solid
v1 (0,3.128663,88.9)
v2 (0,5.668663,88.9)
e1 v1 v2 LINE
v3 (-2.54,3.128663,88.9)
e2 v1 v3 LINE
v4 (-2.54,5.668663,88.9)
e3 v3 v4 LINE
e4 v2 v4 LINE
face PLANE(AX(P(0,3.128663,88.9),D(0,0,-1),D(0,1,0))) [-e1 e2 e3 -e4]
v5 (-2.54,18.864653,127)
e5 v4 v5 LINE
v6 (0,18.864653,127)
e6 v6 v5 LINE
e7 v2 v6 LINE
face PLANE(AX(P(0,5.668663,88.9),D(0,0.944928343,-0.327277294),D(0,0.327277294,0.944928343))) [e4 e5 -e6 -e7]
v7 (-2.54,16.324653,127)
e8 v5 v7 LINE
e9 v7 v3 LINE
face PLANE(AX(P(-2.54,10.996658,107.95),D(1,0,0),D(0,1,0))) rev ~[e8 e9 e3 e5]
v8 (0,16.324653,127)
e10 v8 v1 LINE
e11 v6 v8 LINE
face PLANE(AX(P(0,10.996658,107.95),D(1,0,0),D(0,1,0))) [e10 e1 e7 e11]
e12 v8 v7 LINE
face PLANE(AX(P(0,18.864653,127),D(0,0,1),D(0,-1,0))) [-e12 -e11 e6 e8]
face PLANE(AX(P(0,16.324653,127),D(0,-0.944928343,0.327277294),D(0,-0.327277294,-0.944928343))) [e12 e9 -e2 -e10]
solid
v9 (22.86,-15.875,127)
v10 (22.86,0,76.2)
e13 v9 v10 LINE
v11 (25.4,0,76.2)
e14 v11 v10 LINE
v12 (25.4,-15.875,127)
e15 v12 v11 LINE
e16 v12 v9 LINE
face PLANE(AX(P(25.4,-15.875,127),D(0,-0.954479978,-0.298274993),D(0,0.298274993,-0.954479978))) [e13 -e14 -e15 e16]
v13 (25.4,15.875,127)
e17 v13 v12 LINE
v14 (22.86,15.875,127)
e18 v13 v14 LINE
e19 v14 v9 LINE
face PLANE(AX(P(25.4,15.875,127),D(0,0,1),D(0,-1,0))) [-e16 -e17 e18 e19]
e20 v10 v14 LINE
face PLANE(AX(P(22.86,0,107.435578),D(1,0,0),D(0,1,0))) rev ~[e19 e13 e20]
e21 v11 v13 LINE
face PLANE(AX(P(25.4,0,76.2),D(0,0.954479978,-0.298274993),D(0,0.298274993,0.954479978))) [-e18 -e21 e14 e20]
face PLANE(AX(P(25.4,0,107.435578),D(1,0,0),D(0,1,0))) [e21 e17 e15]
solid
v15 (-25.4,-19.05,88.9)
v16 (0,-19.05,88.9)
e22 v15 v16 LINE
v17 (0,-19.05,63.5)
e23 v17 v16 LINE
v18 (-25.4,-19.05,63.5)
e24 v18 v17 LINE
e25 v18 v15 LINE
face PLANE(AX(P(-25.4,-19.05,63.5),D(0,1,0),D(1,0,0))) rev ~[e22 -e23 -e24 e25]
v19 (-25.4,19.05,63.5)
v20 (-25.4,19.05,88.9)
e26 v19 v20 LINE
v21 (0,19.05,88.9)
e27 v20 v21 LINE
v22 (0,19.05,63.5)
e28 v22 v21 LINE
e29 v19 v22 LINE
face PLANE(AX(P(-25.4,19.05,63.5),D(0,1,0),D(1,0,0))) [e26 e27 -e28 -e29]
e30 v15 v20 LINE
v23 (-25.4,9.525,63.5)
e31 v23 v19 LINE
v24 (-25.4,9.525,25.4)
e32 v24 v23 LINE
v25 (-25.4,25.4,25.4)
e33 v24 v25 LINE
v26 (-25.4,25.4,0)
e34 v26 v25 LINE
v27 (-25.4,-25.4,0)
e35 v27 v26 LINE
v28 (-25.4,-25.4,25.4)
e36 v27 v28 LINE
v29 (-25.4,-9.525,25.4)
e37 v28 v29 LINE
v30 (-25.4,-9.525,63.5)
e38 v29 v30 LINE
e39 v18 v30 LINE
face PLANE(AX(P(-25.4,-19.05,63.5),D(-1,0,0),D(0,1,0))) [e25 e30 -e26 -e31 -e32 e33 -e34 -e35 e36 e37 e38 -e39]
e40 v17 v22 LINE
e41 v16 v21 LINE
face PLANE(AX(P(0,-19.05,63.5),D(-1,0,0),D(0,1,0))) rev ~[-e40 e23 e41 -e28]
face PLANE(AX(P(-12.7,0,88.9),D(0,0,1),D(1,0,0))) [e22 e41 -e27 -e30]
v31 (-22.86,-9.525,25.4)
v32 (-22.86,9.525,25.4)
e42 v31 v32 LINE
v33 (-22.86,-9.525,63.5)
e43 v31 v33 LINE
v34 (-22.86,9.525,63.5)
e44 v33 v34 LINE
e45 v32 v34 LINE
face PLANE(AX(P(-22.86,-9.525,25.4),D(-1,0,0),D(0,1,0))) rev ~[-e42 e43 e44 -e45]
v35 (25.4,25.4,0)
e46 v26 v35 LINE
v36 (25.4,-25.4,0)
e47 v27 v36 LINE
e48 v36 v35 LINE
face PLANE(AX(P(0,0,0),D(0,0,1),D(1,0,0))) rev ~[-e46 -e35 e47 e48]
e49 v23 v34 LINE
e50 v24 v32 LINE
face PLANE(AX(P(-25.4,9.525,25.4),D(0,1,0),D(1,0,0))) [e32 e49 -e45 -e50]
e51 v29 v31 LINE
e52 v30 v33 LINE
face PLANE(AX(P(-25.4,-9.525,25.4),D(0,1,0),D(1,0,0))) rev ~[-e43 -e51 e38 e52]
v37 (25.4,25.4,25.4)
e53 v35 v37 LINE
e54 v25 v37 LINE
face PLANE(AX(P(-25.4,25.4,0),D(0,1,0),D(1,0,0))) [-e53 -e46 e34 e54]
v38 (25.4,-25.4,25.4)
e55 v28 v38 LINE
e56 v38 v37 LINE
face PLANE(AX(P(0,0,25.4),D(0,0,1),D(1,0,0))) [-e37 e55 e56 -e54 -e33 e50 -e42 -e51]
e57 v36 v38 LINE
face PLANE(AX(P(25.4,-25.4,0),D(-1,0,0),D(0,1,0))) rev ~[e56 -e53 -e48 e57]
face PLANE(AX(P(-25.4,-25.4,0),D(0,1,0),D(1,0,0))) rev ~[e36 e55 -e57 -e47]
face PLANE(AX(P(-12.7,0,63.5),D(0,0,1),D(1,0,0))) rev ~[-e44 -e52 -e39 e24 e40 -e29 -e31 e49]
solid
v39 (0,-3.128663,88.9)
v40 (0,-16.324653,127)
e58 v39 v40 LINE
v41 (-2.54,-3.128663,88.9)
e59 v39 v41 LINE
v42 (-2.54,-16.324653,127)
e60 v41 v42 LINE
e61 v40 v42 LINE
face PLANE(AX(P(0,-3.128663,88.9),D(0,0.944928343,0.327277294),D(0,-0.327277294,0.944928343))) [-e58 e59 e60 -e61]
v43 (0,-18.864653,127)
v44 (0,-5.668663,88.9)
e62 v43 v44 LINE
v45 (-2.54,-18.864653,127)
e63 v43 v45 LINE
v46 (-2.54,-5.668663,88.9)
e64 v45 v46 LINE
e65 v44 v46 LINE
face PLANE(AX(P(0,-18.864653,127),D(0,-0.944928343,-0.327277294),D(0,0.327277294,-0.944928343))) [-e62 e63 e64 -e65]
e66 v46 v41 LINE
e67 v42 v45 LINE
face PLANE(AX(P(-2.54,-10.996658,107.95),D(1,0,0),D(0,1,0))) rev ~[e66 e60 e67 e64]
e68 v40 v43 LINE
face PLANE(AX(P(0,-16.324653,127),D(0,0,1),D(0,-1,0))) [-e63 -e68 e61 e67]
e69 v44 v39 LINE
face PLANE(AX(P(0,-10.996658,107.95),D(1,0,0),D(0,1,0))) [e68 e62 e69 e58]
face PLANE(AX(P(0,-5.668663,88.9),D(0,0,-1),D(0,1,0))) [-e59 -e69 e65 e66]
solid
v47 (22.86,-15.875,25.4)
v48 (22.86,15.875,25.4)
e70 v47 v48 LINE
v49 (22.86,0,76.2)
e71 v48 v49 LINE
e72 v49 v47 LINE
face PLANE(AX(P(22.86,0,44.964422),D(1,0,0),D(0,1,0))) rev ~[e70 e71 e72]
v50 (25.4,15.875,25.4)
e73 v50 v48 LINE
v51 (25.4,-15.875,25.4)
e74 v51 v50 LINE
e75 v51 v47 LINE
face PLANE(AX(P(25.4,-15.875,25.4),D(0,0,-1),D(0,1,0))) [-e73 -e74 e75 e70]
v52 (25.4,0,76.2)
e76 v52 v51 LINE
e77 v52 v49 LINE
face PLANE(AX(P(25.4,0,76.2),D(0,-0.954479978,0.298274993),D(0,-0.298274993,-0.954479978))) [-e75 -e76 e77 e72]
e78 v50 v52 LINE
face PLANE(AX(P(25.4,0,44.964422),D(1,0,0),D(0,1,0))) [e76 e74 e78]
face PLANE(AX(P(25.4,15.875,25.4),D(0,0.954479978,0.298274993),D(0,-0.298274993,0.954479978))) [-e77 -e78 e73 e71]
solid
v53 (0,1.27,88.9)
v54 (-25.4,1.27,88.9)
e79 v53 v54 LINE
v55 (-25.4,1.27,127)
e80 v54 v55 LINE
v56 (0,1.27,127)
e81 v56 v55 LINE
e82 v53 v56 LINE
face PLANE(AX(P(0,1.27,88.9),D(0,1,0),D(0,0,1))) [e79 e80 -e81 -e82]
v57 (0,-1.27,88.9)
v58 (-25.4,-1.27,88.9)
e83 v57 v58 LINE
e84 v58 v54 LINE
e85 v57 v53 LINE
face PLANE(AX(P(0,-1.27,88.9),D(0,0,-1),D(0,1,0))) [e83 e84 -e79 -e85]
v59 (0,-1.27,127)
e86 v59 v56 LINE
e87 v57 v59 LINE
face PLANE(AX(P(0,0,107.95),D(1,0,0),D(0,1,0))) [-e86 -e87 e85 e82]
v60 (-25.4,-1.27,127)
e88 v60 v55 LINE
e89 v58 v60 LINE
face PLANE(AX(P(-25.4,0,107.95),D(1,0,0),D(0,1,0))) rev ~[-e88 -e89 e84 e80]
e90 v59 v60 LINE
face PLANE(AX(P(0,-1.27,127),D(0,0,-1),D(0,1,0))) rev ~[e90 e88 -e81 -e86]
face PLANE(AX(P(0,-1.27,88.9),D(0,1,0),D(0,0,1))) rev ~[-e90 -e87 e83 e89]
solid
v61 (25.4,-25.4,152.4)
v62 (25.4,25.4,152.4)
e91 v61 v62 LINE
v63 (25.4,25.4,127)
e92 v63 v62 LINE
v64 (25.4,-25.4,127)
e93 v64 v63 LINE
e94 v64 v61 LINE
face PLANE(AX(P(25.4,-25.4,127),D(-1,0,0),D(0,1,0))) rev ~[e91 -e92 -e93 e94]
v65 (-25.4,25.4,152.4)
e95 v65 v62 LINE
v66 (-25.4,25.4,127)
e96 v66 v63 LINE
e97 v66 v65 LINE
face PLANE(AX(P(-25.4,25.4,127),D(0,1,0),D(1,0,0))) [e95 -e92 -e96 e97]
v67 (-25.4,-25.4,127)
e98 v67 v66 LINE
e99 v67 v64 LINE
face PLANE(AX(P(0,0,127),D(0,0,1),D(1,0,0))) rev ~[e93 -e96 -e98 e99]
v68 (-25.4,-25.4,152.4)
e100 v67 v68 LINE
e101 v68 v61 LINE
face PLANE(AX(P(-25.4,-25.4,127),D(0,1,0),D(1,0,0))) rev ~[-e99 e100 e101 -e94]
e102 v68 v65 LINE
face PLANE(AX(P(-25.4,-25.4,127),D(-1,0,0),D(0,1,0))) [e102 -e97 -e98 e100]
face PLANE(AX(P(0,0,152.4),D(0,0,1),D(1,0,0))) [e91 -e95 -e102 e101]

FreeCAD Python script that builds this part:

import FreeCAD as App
import Part
import Sketcher
Q = App.Units.Quantity


def add_polygon(sketch, points):
    """Adds a closed chain of lines whose ends are joined by coincident constraints."""
    first, n = sketch.GeometryCount, len(points)
    for a, b in zip(points, points[1:] + points[:1]):
        sketch.addGeometry(Part.LineSegment(App.Vector(*a, 0), App.Vector(*b, 0)), False)
    for i in range(n):
        sketch.addConstraint(Sketcher.Constraint("Coincident", first + i, 2, first + (i + 1) % n, 1))

doc = App.newDocument("Part")
body = doc.addObject("PartDesign::Body", "Body")

sketch1 = body.newObject("Sketcher::SketchObject", "Sketch")
sketch1.AttachmentSupport = (doc.getObject("XY_Plane"), [""])
sketch1.MapMode = "FlatFace"
add_polygon(sketch1, [(-25.4, 25.4), (-25.4, -25.4), (25.4, -25.4), (25.4, 25.4)])
sketch1.addConstraint([
    Sketcher.Constraint("Vertical", 0),
    Sketcher.Constraint("Horizontal", 1),
    Sketcher.Constraint("Vertical", 2),
    Sketcher.Constraint("Horizontal", 3),
    Sketcher.Constraint("Symmetric", 0, 2, 2, 2, -1, 1),
    Sketcher.Constraint("Equal", 3, 0),
    Sketcher.Constraint("DistanceX", 1, 1, 1, 2, Q("2 in")),
])
pad1 = body.newObject("PartDesign::Pad", "Pad")
pad1.Profile = sketch1
pad1.Length = Q("1 in")

sketch2 = body.newObject("Sketcher::SketchObject", "Sketch001")
sketch2.AttachmentSupport = (doc.getObject("XY_Plane"), [""])
sketch2.MapMode = "FlatFace"
sketch2.AttachmentOffset = App.Placement(App.Vector(0, 0, 1 * 25.4), App.Rotation())
add_polygon(sketch2, [(-25.4, 9.525), (-25.4, -9.525), (-22.86, -9.525), (-22.86, 9.525)])
sketch2.addConstraint([
    Sketcher.Constraint("Vertical", 0),
    Sketcher.Constraint("Horizontal", 1),
    Sketcher.Constraint("Vertical", 2),
    Sketcher.Constraint("Horizontal", 3),
    Sketcher.Constraint("DistanceX", 1, 1, 1, 2, Q("0.1 in")),
    Sketcher.Constraint("DistanceX", 0, 2, -1, 1, Q("1 in")),
    Sketcher.Constraint("DistanceY", 0, 2, 0, 1, Q("0.75 in")),
    Sketcher.Constraint("DistanceY", 0, 2, -1, 1, Q("0.375 in")),
])
pad2 = body.newObject("PartDesign::Pad", "Pad001")
pad2.Profile = sketch2
pad2.Length = Q("1.5 in")

sketch3 = body.newObject("Sketcher::SketchObject", "Sketch002")
sketch3.AttachmentSupport = (doc.getObject("XY_Plane"), [""])
sketch3.MapMode = "FlatFace"
sketch3.AttachmentOffset = App.Placement(App.Vector(0, 0, 2.5 * 25.4), App.Rotation())
add_polygon(sketch3, [(-25.4, 19.05), (-25.4, -19.05), (0, -19.05), (0, 19.05)])
sketch3.addConstraint([
    Sketcher.Constraint("Vertical", 0),
    Sketcher.Constraint("Horizontal", 1),
    Sketcher.Constraint("Vertical", 2),
    Sketcher.Constraint("Horizontal", 3),
    Sketcher.Constraint("Symmetric", 1, 2, 2, 2, -1, 1),
    Sketcher.Constraint("DistanceX", 1, 1, 1, 2, Q("1 in")),
    Sketcher.Constraint("DistanceY", 0, 2, 0, 1, Q("1.5 in")),
])
pad3 = body.newObject("PartDesign::Pad", "Pad002")
pad3.Profile = sketch3
pad3.Length = Q("1 in")
body2 = doc.addObject("PartDesign::Body", "Body001")

sketch4 = body2.newObject("Sketcher::SketchObject", "Sketch003")
sketch4.AttachmentSupport = (doc.getObject("YZ_Plane001"), [""])
sketch4.MapMode = "FlatFace"
add_polygon(sketch4, [(-1.27, 127), (-1.27, 88.9), (1.27, 88.9), (1.27, 127)])
sketch4.addConstraint([
    Sketcher.Constraint("Vertical", 0),
    Sketcher.Constraint("Horizontal", 1),
    Sketcher.Constraint("Vertical", 2),
    Sketcher.Constraint("Horizontal", 3),
    Sketcher.Constraint("DistanceX", 1, 1, 1, 2, Q("0.1 in")),
    Sketcher.Constraint("DistanceY", 0, 2, 0, 1, Q("1.5 in")),
    Sketcher.Constraint("DistanceY", -1, 1, 2, 2, Q("5 in")),
    Sketcher.Constraint("DistanceX", 0, 2, -1, 1, Q("0.05 in")),
])
pad4 = body2.newObject("PartDesign::Pad", "Pad003")
pad4.Profile = sketch4
pad4.Length = Q("1 in")
pad4.Reversed = True
body3 = doc.addObject("PartDesign::Body", "Body002")

sketch5 = body3.newObject("Sketcher::SketchObject", "Sketch004")
sketch5.AttachmentSupport = (doc.getObject("YZ_Plane002"), [""])
sketch5.MapMode = "FlatFace"
add_polygon(sketch5, [(16.324653, 127), (3.128663, 88.9), (5.668663, 88.9), (18.864653, 127)])
sketch5.addConstraint([
    Sketcher.Constraint("Horizontal", 1),
    Sketcher.Constraint("Horizontal", 3),
    Sketcher.Constraint("Parallel", 0, 2),
    Sketcher.Constraint("DistanceX", 1, 1, 1, 2, Q("0.1 in")),
    Sketcher.Constraint("DistanceY", -1, 1, 2, 2, Q("5 in")),
    Sketcher.Constraint("DistanceY", -1, 1, 0, 2, Q("3.5 in")),
    Sketcher.Constraint("DistanceX", 1, 2, 2, 2, 13.19599),
    Sketcher.Constraint("DistanceX", -1, 1, 0, 2, 3.128663),
])
pad5 = body3.newObject("PartDesign::Pad", "Pad004")
pad5.Profile = sketch5
pad5.Length = Q("0.1 in")
pad5.Reversed = True
body4 = doc.addObject("PartDesign::Body", "Body003")

sketch6 = body4.newObject("Sketcher::SketchObject", "Sketch005")
sketch6.AttachmentSupport = (doc.getObject("YZ_Plane003"), [""])
sketch6.MapMode = "FlatFace"
add_polygon(sketch6, [(-5.668663, 88.9), (-3.128663, 88.9), (-16.324653, 127), (-18.864653, 127)])
sketch6.addConstraint([
    Sketcher.Constraint("Horizontal", 0),
    Sketcher.Constraint("Horizontal", 2),
    Sketcher.Constraint("Parallel", 1, 3),
    Sketcher.Constraint("DistanceX", 0, 1, 0, 2, Q("0.1 in")),
    Sketcher.Constraint("DistanceY", -1, 1, 1, 2, Q("5 in")),
    Sketcher.Constraint("DistanceY", -1, 1, 0, 2, Q("3.5 in")),
    Sketcher.Constraint("DistanceX", 1, 2, 0, 2, 13.19599),
    Sketcher.Constraint("DistanceX", 0, 2, -1, 1, 3.128663),
])
pad6 = body4.newObject("PartDesign::Pad", "Pad005")
pad6.Profile = sketch6
pad6.Length = Q("0.1 in")
pad6.Reversed = True
body5 = doc.addObject("PartDesign::Body", "Body004")

sketch7 = body5.newObject("Sketcher::SketchObject", "Sketch006")
sketch7.AttachmentSupport = (doc.getObject("XY_Plane004"), [""])
sketch7.MapMode = "FlatFace"
sketch7.AttachmentOffset = App.Placement(App.Vector(0, 0, 5 * 25.4), App.Rotation())
add_polygon(sketch7, [(-25.4, 25.4), (-25.4, -25.4), (25.4, -25.4), (25.4, 25.4)])
sketch7.addConstraint([
    Sketcher.Constraint("Vertical", 0),
    Sketcher.Constraint("Horizontal", 1),
    Sketcher.Constraint("Vertical", 2),
    Sketcher.Constraint("Horizontal", 3),
    Sketcher.Constraint("Symmetric", 0, 2, 2, 2, -1, 1),
    Sketcher.Constraint("Equal", 3, 0),
    Sketcher.Constraint("DistanceX", 1, 1, 1, 2, Q("2 in")),
])
pad7 = body5.newObject("PartDesign::Pad", "Pad006")
pad7.Profile = sketch7
pad7.Length = Q("1 in")
body6 = doc.addObject("PartDesign::Body", "Body005")

sketch8 = body6.newObject("Sketcher::SketchObject", "Sketch007")
sketch8.AttachmentSupport = (doc.getObject("YZ_Plane005"), [""])
sketch8.MapMode = "FlatFace"
sketch8.AttachmentOffset = App.Placement(App.Vector(0, 0, 1 * 25.4), App.Rotation())
add_polygon(sketch8, [(-15.875, 127), (0, 76.2), (15.875, 127)])
sketch8.addConstraint([
    Sketcher.Constraint("Horizontal", 2),
    Sketcher.Constraint("PointOnObject", 0, 2, -2),
    Sketcher.Constraint("Equal", 0, 1),
    Sketcher.Constraint("DistanceY", -1, 1, 0, 2, Q("3 in")),
    Sketcher.Constraint("DistanceY", -1, 1, 1, 2, Q("5 in")),
    Sketcher.Constraint("DistanceX", 2, 2, 2, 1, Q("1.25 in")),
])
pad8 = body6.newObject("PartDesign::Pad", "Pad007")
pad8.Profile = sketch8
pad8.Length = Q("0.1 in")
pad8.Reversed = True
body7 = doc.addObject("PartDesign::Body", "Body006")

sketch9 = body7.newObject("Sketcher::SketchObject", "Sketch008")
sketch9.AttachmentSupport = (doc.getObject("YZ_Plane006"), [""])
sketch9.MapMode = "FlatFace"
sketch9.AttachmentOffset = App.Placement(App.Vector(0, 0, 1 * 25.4), App.Rotation())
add_polygon(sketch9, [(0, 76.2), (-15.875, 25.4), (15.875, 25.4)])
sketch9.addConstraint([
    Sketcher.Constraint("Horizontal", 1),
    Sketcher.Constraint("PointOnObject", 2, 2, -2),
    Sketcher.Constraint("Equal", 0, 2),
    Sketcher.Constraint("DistanceY", -1, 1, 0, 2, Q("1 in")),
    Sketcher.Constraint("DistanceY", -1, 1, 2, 2, Q("3 in")),
    Sketcher.Constraint("DistanceX", 1, 1, 1, 2, Q("1.25 in")),
])
pad9 = body7.newObject("PartDesign::Pad", "Pad008")
pad9.Profile = sketch9
pad9.Length = Q("0.1 in")
pad9.Reversed = True

doc.recompute()
